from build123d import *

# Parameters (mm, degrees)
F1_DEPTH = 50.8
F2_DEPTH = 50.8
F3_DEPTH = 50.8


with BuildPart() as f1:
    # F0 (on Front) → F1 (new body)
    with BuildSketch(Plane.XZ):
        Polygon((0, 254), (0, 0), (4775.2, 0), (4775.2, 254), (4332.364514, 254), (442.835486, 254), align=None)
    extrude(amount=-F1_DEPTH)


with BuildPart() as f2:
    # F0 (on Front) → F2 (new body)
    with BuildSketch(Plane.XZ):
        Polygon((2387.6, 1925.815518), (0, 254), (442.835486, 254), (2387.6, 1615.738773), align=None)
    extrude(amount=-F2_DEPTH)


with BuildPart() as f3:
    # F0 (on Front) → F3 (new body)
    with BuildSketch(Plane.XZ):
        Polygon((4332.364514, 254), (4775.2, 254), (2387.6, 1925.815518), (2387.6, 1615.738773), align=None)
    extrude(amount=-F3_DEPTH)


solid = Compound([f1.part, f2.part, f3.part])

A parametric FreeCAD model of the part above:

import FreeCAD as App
import Part
import Sketcher

V = App.Vector
Q = App.Units.Quantity

doc = App.newDocument("Part")
body = doc.addObject("PartDesign::Body", "Body")

# Sketch on XZ plane
sketch1 = body.newObject("Sketcher::SketchObject", "Sketch")
sketch1.AttachmentSupport = (doc.getObject("XZ_Plane"), [""])
sketch1.MapMode = "FlatFace"
sketch1.addGeometry(Part.LineSegment(V(0, 254, 0), V(0, 0, 0)), False)
sketch1.addGeometry(Part.LineSegment(V(0, 0, 0), V(4775.2, 0, 0)), False)
sketch1.addGeometry(Part.LineSegment(V(4775.2, 0, 0), V(4775.2, 254, 0)), False)
sketch1.addGeometry(Part.LineSegment(V(4775.2, 254, 0), V(0, 254, 0)), False)
sketch1.addConstraint(Sketcher.Constraint("Coincident", 0, 2, 1, 1))
sketch1.addConstraint(Sketcher.Constraint("Coincident", 1, 2, 2, 1))
sketch1.addConstraint(Sketcher.Constraint("Coincident", 2, 2, 3, 1))
sketch1.addConstraint(Sketcher.Constraint("Coincident", 3, 2, 0, 1))
sketch1.addConstraint(Sketcher.Constraint("Vertical", 0))
sketch1.addConstraint(Sketcher.Constraint("Horizontal", 1))
sketch1.addConstraint(Sketcher.Constraint("Vertical", 2))
sketch1.addConstraint(Sketcher.Constraint("Horizontal", 3))
sketch1.addConstraint(Sketcher.Constraint("Coincident", 0, 2, -1, 1))
sketch1.addConstraint(Sketcher.Constraint("DistanceX", 1, 1, 1, 2, Q("188 in")))
sketch1.addConstraint(Sketcher.Constraint("DistanceY", 0, 2, 0, 1, Q("10 in")))
pad1 = body.newObject("PartDesign::Pad", "Pad")
pad1.Profile = sketch1
pad1.Length = Q("2 in")
pad1.Reversed = True
body2 = doc.addObject("PartDesign::Body", "Body001")

# Sketch on XZ plane
sketch2 = body2.newObject("Sketcher::SketchObject", "Sketch001")
sketch2.AttachmentSupport = (doc.getObject("XZ_Plane001"), [""])
sketch2.MapMode = "FlatFace"
sketch2.addGeometry(Part.LineSegment(V(2387.6, 1925.815518, 0), V(0, 254, 0)), False)
sketch2.addGeometry(Part.LineSegment(V(0, 254, 0), V(442.835486, 254, 0)), False)
sketch2.addGeometry(Part.LineSegment(V(442.835486, 254, 0), V(2387.6, 1615.738773, 0)), False)
sketch2.addGeometry(Part.LineSegment(V(2387.6, 1615.738773, 0), V(2387.6, 1925.815518, 0)), False)
sketch2.addConstraint(Sketcher.Constraint("Coincident", 0, 2, 1, 1))
sketch2.addConstraint(Sketcher.Constraint("Coincident", 1, 2, 2, 1))
sketch2.addConstraint(Sketcher.Constraint("Coincident", 2, 2, 3, 1))
sketch2.addConstraint(Sketcher.Constraint("Coincident", 3, 2, 0, 1))
sketch2.addConstraint(Sketcher.Constraint("Horizontal", 1))
sketch2.addConstraint(Sketcher.Constraint("Vertical", 3))
sketch2.addConstraint(Sketcher.Constraint("PointOnObject", 0, 2, -2))
sketch2.addConstraint(Sketcher.Constraint("Parallel", 0, 2))
sketch2.addConstraint(Sketcher.Constraint("DistanceY", -1, 1, 0, 2, Q("10 in")))
sketch2.addConstraint(Sketcher.Constraint("DistanceX", -1, 1, 2, 2, Q("94 in")))
sketch2.addConstraint(Sketcher.Constraint("Angle", 0, Q("-145 deg")))
sketch2.addConstraint(Sketcher.Constraint("Distance", 2, 2374.1191))
pad2 = body2.newObject("PartDesign::Pad", "Pad001")
pad2.Profile = sketch2
pad2.Length = Q("2 in")
pad2.Reversed = True
body3 = doc.addObject("PartDesign::Body", "Body002")

# Sketch on XZ plane
sketch3 = body3.newObject("Sketcher::SketchObject", "Sketch002")
sketch3.AttachmentSupport = (doc.getObject("XZ_Plane002"), [""])
sketch3.MapMode = "FlatFace"
sketch3.addGeometry(Part.LineSegment(V(4332.364514, 254, 0), V(4775.2, 254, 0)), False)
sketch3.addGeometry(Part.LineSegment(V(4775.2, 254, 0), V(2387.6, 1925.815518, 0)), False)
sketch3.addGeometry(Part.LineSegment(V(2387.6, 1925.815518, 0), V(2387.6, 1615.738773, 0)), False)
sketch3.addGeometry(Part.LineSegment(V(2387.6, 1615.738773, 0), V(4332.364514, 254, 0)), False)
sketch3.addConstraint(Sketcher.Constraint("Coincident", 0, 2, 1, 1))
sketch3.addConstraint(Sketcher.Constraint("Coincident", 1, 2, 2, 1))
sketch3.addConstraint(Sketcher.Constraint("Coincident", 2, 2, 3, 1))
sketch3.addConstraint(Sketcher.Constraint("Coincident", 3, 2, 0, 1))
sketch3.addConstraint(Sketcher.Constraint("Horizontal", 0))
sketch3.addConstraint(Sketcher.Constraint("Vertical", 2))
sketch3.addConstraint(Sketcher.Constraint("Parallel", 1, 3))
sketch3.addConstraint(Sketcher.Constraint("DistanceX", -1, 1, 0, 2, Q("188 in")))
sketch3.addConstraint(Sketcher.Constraint("DistanceY", -1, 1, 0, 2, Q("10 in")))
sketch3.addConstraint(Sketcher.Constraint("DistanceX", -1, 1, 1, 2, Q("94 in")))
sketch3.addConstraint(Sketcher.Constraint("Angle", 1, Q("145 deg")))
sketch3.addConstraint(Sketcher.Constraint("Distance", 3, 2374.1191))
pad3 = body3.newObject("PartDesign::Pad", "Pad002")
pad3.Profile = sketch3
pad3.Length = Q("2 in")
pad3.Reversed = True

doc.recompute()
